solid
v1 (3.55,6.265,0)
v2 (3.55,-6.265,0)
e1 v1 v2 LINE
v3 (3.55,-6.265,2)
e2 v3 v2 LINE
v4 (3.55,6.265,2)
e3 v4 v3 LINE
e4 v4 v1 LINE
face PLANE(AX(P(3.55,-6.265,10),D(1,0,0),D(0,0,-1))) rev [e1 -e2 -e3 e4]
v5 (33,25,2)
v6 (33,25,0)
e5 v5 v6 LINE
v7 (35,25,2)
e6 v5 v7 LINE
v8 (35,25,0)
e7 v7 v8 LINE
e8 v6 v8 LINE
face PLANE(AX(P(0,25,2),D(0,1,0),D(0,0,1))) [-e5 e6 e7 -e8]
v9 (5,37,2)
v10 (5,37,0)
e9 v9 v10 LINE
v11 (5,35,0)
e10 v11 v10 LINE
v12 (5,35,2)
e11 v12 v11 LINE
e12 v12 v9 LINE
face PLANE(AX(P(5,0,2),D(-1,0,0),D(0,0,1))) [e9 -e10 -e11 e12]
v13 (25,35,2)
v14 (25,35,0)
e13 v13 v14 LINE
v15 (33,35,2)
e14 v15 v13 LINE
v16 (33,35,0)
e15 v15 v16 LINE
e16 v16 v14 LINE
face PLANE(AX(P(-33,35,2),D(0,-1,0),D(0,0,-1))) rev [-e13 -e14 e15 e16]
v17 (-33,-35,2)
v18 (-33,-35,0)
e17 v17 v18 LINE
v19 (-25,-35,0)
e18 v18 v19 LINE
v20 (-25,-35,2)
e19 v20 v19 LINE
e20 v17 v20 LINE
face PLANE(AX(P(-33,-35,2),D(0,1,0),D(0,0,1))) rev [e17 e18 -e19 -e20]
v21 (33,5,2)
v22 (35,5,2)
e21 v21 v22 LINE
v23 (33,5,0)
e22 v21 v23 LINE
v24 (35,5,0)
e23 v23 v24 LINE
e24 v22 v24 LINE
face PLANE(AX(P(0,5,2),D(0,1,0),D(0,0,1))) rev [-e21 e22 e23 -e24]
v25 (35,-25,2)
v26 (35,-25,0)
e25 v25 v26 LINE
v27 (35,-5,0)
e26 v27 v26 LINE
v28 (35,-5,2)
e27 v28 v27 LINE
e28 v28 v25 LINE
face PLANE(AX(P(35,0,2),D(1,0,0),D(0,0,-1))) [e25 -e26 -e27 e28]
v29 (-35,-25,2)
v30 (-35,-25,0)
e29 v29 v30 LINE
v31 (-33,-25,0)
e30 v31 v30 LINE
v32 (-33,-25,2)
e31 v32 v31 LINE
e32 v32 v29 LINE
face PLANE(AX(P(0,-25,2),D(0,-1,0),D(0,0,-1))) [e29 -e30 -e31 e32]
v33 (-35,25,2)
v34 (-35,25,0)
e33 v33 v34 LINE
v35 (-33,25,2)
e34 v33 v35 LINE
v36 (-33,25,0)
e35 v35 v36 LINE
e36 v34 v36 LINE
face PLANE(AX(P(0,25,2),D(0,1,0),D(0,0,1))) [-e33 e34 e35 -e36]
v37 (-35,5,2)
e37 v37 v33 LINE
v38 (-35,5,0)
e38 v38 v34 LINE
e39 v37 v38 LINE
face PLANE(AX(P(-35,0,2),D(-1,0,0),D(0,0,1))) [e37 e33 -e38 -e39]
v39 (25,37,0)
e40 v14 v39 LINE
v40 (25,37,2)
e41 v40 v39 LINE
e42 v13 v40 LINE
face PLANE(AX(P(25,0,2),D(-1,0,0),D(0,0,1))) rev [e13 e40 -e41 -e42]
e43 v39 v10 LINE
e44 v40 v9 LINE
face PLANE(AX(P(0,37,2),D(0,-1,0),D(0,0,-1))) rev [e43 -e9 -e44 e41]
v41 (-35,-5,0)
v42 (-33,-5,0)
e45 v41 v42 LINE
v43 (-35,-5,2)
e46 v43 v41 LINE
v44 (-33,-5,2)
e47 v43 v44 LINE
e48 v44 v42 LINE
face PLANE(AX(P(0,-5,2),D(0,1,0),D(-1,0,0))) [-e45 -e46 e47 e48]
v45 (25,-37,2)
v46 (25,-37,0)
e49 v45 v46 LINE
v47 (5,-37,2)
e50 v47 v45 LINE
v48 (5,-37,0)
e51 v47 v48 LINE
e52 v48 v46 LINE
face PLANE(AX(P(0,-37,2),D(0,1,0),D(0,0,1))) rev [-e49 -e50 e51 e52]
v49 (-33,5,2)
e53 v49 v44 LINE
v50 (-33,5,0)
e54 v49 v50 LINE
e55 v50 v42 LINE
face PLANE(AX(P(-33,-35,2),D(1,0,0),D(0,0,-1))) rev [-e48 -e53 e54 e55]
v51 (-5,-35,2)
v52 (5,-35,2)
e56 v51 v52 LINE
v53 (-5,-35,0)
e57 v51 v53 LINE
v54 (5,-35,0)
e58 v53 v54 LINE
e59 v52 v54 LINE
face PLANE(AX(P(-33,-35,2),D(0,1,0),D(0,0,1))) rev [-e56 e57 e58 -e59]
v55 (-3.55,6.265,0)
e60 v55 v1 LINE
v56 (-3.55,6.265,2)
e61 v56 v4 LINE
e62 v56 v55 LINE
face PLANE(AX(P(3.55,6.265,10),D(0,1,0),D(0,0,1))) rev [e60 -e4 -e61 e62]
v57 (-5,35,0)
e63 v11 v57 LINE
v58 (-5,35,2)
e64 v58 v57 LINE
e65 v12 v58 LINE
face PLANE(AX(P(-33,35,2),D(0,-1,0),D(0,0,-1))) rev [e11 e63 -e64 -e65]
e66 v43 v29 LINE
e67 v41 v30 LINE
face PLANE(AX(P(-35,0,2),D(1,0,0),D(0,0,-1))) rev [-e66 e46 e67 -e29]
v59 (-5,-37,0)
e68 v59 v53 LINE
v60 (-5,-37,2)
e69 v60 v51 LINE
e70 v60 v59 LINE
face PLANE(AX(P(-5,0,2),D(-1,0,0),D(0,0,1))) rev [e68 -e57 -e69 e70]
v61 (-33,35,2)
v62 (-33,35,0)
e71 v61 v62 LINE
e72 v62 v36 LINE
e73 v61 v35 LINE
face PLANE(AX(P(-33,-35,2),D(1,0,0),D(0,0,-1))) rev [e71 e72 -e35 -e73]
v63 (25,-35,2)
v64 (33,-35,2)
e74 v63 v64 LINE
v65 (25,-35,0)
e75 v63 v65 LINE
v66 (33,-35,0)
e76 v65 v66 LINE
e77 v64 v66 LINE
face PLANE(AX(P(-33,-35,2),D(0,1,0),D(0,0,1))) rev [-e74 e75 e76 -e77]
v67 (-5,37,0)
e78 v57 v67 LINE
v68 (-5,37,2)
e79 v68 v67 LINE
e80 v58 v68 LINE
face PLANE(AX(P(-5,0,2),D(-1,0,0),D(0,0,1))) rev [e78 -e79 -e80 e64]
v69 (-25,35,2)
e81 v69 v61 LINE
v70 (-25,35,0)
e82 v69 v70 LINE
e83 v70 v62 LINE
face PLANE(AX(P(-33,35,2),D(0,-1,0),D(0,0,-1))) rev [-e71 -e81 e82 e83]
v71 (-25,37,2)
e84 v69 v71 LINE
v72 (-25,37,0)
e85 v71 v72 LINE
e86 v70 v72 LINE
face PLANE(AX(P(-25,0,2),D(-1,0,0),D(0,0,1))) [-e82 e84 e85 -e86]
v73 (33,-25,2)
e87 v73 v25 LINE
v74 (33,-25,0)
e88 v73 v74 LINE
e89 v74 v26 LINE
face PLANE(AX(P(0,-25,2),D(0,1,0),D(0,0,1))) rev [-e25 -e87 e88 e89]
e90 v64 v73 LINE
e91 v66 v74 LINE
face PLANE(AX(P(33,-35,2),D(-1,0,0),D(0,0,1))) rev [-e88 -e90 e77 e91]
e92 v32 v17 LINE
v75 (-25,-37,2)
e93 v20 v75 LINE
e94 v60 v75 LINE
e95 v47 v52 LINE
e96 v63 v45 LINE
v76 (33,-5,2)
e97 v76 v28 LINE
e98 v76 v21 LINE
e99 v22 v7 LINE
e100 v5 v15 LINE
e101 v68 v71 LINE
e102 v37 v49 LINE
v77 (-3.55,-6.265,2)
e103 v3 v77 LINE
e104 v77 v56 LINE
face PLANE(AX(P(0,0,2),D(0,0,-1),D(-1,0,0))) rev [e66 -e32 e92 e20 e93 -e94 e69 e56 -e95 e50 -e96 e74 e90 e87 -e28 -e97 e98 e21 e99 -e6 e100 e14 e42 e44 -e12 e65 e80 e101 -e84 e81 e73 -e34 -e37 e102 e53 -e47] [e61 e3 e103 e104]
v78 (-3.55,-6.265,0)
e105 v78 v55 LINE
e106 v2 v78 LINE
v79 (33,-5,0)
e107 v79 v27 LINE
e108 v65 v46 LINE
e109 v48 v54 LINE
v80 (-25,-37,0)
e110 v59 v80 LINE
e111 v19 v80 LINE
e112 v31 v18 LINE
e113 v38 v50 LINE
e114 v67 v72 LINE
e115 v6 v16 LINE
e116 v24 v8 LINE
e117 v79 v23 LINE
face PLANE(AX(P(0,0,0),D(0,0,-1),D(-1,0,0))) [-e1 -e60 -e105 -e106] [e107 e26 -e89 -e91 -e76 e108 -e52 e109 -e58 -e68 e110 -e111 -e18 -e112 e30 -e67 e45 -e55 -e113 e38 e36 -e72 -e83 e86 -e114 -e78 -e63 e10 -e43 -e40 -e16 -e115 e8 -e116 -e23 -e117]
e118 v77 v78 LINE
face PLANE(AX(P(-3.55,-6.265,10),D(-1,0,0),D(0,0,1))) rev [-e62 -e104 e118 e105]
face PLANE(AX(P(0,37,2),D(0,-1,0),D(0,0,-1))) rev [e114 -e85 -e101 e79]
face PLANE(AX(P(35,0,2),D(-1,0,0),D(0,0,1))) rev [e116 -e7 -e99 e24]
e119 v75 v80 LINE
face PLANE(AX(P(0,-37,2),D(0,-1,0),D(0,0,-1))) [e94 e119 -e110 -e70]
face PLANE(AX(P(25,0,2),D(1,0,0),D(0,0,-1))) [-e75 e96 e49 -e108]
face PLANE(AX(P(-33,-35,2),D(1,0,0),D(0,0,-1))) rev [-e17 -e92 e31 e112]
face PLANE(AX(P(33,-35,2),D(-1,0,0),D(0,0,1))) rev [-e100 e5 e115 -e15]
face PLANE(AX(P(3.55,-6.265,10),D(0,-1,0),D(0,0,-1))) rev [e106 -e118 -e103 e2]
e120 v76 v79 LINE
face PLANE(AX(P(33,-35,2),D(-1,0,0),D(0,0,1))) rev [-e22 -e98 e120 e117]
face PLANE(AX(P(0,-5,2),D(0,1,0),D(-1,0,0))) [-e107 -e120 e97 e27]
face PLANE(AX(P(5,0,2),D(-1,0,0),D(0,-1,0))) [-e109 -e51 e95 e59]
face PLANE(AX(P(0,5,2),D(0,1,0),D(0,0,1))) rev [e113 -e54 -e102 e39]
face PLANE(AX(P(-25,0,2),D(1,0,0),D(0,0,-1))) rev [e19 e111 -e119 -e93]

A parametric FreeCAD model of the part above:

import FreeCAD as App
import Part
import Sketcher
from FreeCAD import Vector
Q = App.Units.Quantity

doc = App.newDocument("Part")
body = doc.addObject("PartDesign::Body", "Body")

# Sketch on XY plane
sketch1 = body.newObject("Sketcher::SketchObject", "Sketch")
sketch1.AttachmentSupport = (doc.getObject("XY_Plane"), [""])
sketch1.MapMode = "FlatFace"
sketch1.addGeometry([
    Part.LineSegment(Vector(-33, 35, 0), Vector(-33, -35, 0)),
    Part.LineSegment(Vector(-33, -35, 0), Vector(33, -35, 0)),
    Part.LineSegment(Vector(33, -35, 0), Vector(33, 35, 0)),
    Part.LineSegment(Vector(33, 35, 0), Vector(-33, 35, 0)),
], False)
sketch1.addConstraint([
    Sketcher.Constraint("Coincident", 0, 2, 1, 1),
    Sketcher.Constraint("Coincident", 1, 2, 2, 1),
    Sketcher.Constraint("Coincident", 2, 2, 3, 1),
    Sketcher.Constraint("Coincident", 3, 2, 0, 1),
    Sketcher.Constraint("Vertical", 0),
    Sketcher.Constraint("Horizontal", 1),
    Sketcher.Constraint("Vertical", 2),
    Sketcher.Constraint("Horizontal", 3),
    Sketcher.Constraint("Symmetric", 0, 2, 2, 2, -1, 1),
    Sketcher.Constraint("DistanceX", 1, 1, 1, 2, Q("66 mm")),
    Sketcher.Constraint("DistanceY", 0, 2, 0, 1, Q("70 mm")),
])
pad1 = body.newObject("PartDesign::Pad", "Pad")
pad1.Profile = sketch1
pad1.Length = 2

# Sketch on XY plane
sketch2 = body.newObject("Sketcher::SketchObject", "Sketch001")
sketch2.AttachmentSupport = (doc.getObject("XY_Plane"), [""])
sketch2.MapMode = "FlatFace"
sketch2.addGeometry([
    Part.LineSegment(Vector(-33, -5, 0), Vector(-33, -25, 0)),  # 0
    Part.LineSegment(Vector(-33, -25, 0), Vector(-35, -25, 0)),  # 1
    Part.LineSegment(Vector(-35, -25, 0), Vector(-35, -5, 0)),  # 2
    Part.LineSegment(Vector(-35, -5, 0), Vector(-33, -5, 0)),  # 3
    Part.LineSegment(Vector(-33, 25, 0), Vector(-33, 5, 0)),  # 4
    Part.LineSegment(Vector(-33, 5, 0), Vector(-35, 5, 0)),  # 5
    Part.LineSegment(Vector(-35, 5, 0), Vector(-35, 25, 0)),  # 6
    Part.LineSegment(Vector(-35, 25, 0), Vector(-33, 25, 0)),  # 7
    Part.LineSegment(Vector(35, -5, 0), Vector(35, -25, 0)),  # 8
    Part.LineSegment(Vector(35, -25, 0), Vector(33, -25, 0)),  # 9
    Part.LineSegment(Vector(33, -25, 0), Vector(33, -5, 0)),  # 10
    Part.LineSegment(Vector(33, -5, 0), Vector(35, -5, 0)),  # 11
    Part.LineSegment(Vector(35, 25, 0), Vector(35, 5, 0)),  # 12
    Part.LineSegment(Vector(35, 5, 0), Vector(33, 5, 0)),  # 13
    Part.LineSegment(Vector(33, 5, 0), Vector(33, 25, 0)),  # 14
    Part.LineSegment(Vector(33, 25, 0), Vector(35, 25, 0)),  # 15
], False)
sketch2.addConstraint([
    Sketcher.Constraint("Coincident", 0, 2, 1, 1),
    Sketcher.Constraint("Coincident", 1, 2, 2, 1),
    Sketcher.Constraint("Coincident", 2, 2, 3, 1),
    Sketcher.Constraint("Coincident", 3, 2, 0, 1),
    Sketcher.Constraint("Coincident", 4, 2, 5, 1),
    Sketcher.Constraint("Coincident", 5, 2, 6, 1),
    Sketcher.Constraint("Coincident", 6, 2, 7, 1),
    Sketcher.Constraint("Coincident", 7, 2, 4, 1),
    Sketcher.Constraint("Coincident", 8, 2, 9, 1),
    Sketcher.Constraint("Coincident", 9, 2, 10, 1),
    Sketcher.Constraint("Coincident", 10, 2, 11, 1),
    Sketcher.Constraint("Coincident", 11, 2, 8, 1),
    Sketcher.Constraint("Coincident", 12, 2, 13, 1),
    Sketcher.Constraint("Coincident", 13, 2, 14, 1),
    Sketcher.Constraint("Coincident", 14, 2, 15, 1),
    Sketcher.Constraint("Coincident", 15, 2, 12, 1),
    Sketcher.Constraint("Vertical", 0),
    Sketcher.Constraint("Horizontal", 1),
    Sketcher.Constraint("Vertical", 2),
    Sketcher.Constraint("Horizontal", 3),
    Sketcher.Constraint("Vertical", 4),
    Sketcher.Constraint("Horizontal", 5),
    Sketcher.Constraint("Vertical", 6),
    Sketcher.Constraint("Horizontal", 7),
    Sketcher.Constraint("Vertical", 8),
    Sketcher.Constraint("Horizontal", 9),
    Sketcher.Constraint("Vertical", 10),
    Sketcher.Constraint("Horizontal", 11),
    Sketcher.Constraint("Vertical", 12),
    Sketcher.Constraint("Horizontal", 13),
    Sketcher.Constraint("Vertical", 14),
    Sketcher.Constraint("Horizontal", 15),
    Sketcher.Constraint("Symmetric", 6, 2, 8, 2, -1, 1),
    Sketcher.Constraint("Symmetric", 4, 2, 10, 2, -1, 1),
    Sketcher.Constraint("Symmetric", 2, 2, 12, 2, -1, 1),
    Sketcher.Constraint("Symmetric", 0, 2, 14, 2, -1, 1),
    Sketcher.Constraint("Symmetric", 1, 2, 8, 2, -2),
    Sketcher.Constraint("Symmetric", 3, 2, 10, 2, -2),
    Sketcher.Constraint("DistanceX", 1, 2, 1, 1, Q("2 mm")),
    Sketcher.Constraint("DistanceY", 0, 2, 0, 1, Q("20 mm")),
    Sketcher.Constraint("DistanceX", 0, 2, -1, 1, Q("33 mm")),
    Sketcher.Constraint("DistanceY", 0, 2, -1, 1, Q("25 mm")),
])
pad2 = body.newObject("PartDesign::Pad", "Pad001")
pad2.Profile = sketch2
pad2.Length = 2

# Sketch on XY plane
sketch3 = body.newObject("Sketcher::SketchObject", "Sketch002")
sketch3.AttachmentSupport = (doc.getObject("XY_Plane"), [""])
sketch3.MapMode = "FlatFace"
sketch3.addGeometry([
    Part.LineSegment(Vector(25, 37, 0), Vector(25, 35, 0)),  # 0
    Part.LineSegment(Vector(25, 35, 0), Vector(5, 35, 0)),  # 1
    Part.LineSegment(Vector(5, 35, 0), Vector(5, 37, 0)),  # 2
    Part.LineSegment(Vector(5, 37, 0), Vector(25, 37, 0)),  # 3
    Part.LineSegment(Vector(-5, 37, 0), Vector(-5, 35, 0)),  # 4
    Part.LineSegment(Vector(-5, 35, 0), Vector(-25, 35, 0)),  # 5
    Part.LineSegment(Vector(-25, 35, 0), Vector(-25, 37, 0)),  # 6
    Part.LineSegment(Vector(-25, 37, 0), Vector(-5, 37, 0)),  # 7
    Part.LineSegment(Vector(25, -35, 0), Vector(25, -37, 0)),  # 8
    Part.LineSegment(Vector(25, -37, 0), Vector(5, -37, 0)),  # 9
    Part.LineSegment(Vector(5, -37, 0), Vector(5, -35, 0)),  # 10
    Part.LineSegment(Vector(5, -35, 0), Vector(25, -35, 0)),  # 11
    Part.LineSegment(Vector(-5, -35, 0), Vector(-5, -37, 0)),  # 12
    Part.LineSegment(Vector(-5, -37, 0), Vector(-25, -37, 0)),  # 13
    Part.LineSegment(Vector(-25, -37, 0), Vector(-25, -35, 0)),  # 14
    Part.LineSegment(Vector(-25, -35, 0), Vector(-5, -35, 0)),  # 15
], False)
sketch3.addConstraint([
    Sketcher.Constraint("Coincident", 0, 2, 1, 1),
    Sketcher.Constraint("Coincident", 1, 2, 2, 1),
    Sketcher.Constraint("Coincident", 2, 2, 3, 1),
    Sketcher.Constraint("Coincident", 3, 2, 0, 1),
    Sketcher.Constraint("Coincident", 4, 2, 5, 1),
    Sketcher.Constraint("Coincident", 5, 2, 6, 1),
    Sketcher.Constraint("Coincident", 6, 2, 7, 1),
    Sketcher.Constraint("Coincident", 7, 2, 4, 1),
    Sketcher.Constraint("Coincident", 8, 2, 9, 1),
    Sketcher.Constraint("Coincident", 9, 2, 10, 1),
    Sketcher.Constraint("Coincident", 10, 2, 11, 1),
    Sketcher.Constraint("Coincident", 11, 2, 8, 1),
    Sketcher.Constraint("Coincident", 12, 2, 13, 1),
    Sketcher.Constraint("Coincident", 13, 2, 14, 1),
    Sketcher.Constraint("Coincident", 14, 2, 15, 1),
    Sketcher.Constraint("Coincident", 15, 2, 12, 1),
    Sketcher.Constraint("Vertical", 0),
    Sketcher.Constraint("Horizontal", 1),
    Sketcher.Constraint("Vertical", 2),
    Sketcher.Constraint("Horizontal", 3),
    Sketcher.Constraint("Vertical", 4),
    Sketcher.Constraint("Horizontal", 5),
    Sketcher.Constraint("Vertical", 6),
    Sketcher.Constraint("Horizontal", 7),
    Sketcher.Constraint("Vertical", 8),
    Sketcher.Constraint("Horizontal", 9),
    Sketcher.Constraint("Vertical", 10),
    Sketcher.Constraint("Horizontal", 11),
    Sketcher.Constraint("Vertical", 12),
    Sketcher.Constraint("Horizontal", 13),
    Sketcher.Constraint("Vertical", 14),
    Sketcher.Constraint("Horizontal", 15),
    Sketcher.Constraint("Symmetric", 6, 2, 8, 2, -1, 1),
    Sketcher.Constraint("Symmetric", 4, 2, 10, 2, -1, 1),
    Sketcher.Constraint("Symmetric", 2, 2, 12, 2, -1, 1),
    Sketcher.Constraint("Symmetric", 0, 2, 14, 2, -1, 1),
    Sketcher.Constraint("Symmetric", 1, 2, 4, 2, -2),
    Sketcher.Constraint("Symmetric", 3, 2, 6, 2, -2),
    Sketcher.Constraint("DistanceX", 1, 2, 1, 1, Q("20 mm")),
    Sketcher.Constraint("DistanceY", 0, 2, 0, 1, Q("2 mm")),
    Sketcher.Constraint("DistanceX", -1, 1, 0, 2, Q("25 mm")),
    Sketcher.Constraint("DistanceY", -1, 1, 0, 2, Q("35 mm")),
])
pad3 = body.newObject("PartDesign::Pad", "Pad002")
pad3.Profile = sketch3
pad3.Length = 2

# Sketch on XY plane
sketch4 = body.newObject("Sketcher::SketchObject", "Sketch003")
sketch4.AttachmentSupport = (doc.getObject("XY_Plane"), [""])
sketch4.MapMode = "FlatFace"
sketch4.addGeometry([
    Part.LineSegment(Vector(4, 6, 0), Vector(4, -6, 0)),
    Part.LineSegment(Vector(4, -6, 0), Vector(-4, -6, 0)),
    Part.LineSegment(Vector(-4, -6, 0), Vector(-4, 6, 0)),
    Part.LineSegment(Vector(-4, 6, 0), Vector(4, 6, 0)),
], False)
sketch4.addConstraint([
    Sketcher.Constraint("Coincident", 0, 2, 1, 1),
    Sketcher.Constraint("Coincident", 1, 2, 2, 1),
    Sketcher.Constraint("Coincident", 2, 2, 3, 1),
    Sketcher.Constraint("Coincident", 3, 2, 0, 1),
    Sketcher.Constraint("Vertical", 0),
    Sketcher.Constraint("Horizontal", 1),
    Sketcher.Constraint("Vertical", 2),
    Sketcher.Constraint("Horizontal", 3),
    Sketcher.Constraint("Symmetric", 0, 2, 2, 2, -1, 1),
    Sketcher.Constraint("DistanceX", 1, 2, 1, 1, Q("7.1 mm")),
    Sketcher.Constraint("DistanceY", 0, 2, 0, 1, Q("12.53 mm")),
])
pocket1 = body.newObject("PartDesign::Pocket", "Pocket")
pocket1.Profile = sketch4
pocket1.Length = 10
pocket1.Reversed = True

doc.recompute()
